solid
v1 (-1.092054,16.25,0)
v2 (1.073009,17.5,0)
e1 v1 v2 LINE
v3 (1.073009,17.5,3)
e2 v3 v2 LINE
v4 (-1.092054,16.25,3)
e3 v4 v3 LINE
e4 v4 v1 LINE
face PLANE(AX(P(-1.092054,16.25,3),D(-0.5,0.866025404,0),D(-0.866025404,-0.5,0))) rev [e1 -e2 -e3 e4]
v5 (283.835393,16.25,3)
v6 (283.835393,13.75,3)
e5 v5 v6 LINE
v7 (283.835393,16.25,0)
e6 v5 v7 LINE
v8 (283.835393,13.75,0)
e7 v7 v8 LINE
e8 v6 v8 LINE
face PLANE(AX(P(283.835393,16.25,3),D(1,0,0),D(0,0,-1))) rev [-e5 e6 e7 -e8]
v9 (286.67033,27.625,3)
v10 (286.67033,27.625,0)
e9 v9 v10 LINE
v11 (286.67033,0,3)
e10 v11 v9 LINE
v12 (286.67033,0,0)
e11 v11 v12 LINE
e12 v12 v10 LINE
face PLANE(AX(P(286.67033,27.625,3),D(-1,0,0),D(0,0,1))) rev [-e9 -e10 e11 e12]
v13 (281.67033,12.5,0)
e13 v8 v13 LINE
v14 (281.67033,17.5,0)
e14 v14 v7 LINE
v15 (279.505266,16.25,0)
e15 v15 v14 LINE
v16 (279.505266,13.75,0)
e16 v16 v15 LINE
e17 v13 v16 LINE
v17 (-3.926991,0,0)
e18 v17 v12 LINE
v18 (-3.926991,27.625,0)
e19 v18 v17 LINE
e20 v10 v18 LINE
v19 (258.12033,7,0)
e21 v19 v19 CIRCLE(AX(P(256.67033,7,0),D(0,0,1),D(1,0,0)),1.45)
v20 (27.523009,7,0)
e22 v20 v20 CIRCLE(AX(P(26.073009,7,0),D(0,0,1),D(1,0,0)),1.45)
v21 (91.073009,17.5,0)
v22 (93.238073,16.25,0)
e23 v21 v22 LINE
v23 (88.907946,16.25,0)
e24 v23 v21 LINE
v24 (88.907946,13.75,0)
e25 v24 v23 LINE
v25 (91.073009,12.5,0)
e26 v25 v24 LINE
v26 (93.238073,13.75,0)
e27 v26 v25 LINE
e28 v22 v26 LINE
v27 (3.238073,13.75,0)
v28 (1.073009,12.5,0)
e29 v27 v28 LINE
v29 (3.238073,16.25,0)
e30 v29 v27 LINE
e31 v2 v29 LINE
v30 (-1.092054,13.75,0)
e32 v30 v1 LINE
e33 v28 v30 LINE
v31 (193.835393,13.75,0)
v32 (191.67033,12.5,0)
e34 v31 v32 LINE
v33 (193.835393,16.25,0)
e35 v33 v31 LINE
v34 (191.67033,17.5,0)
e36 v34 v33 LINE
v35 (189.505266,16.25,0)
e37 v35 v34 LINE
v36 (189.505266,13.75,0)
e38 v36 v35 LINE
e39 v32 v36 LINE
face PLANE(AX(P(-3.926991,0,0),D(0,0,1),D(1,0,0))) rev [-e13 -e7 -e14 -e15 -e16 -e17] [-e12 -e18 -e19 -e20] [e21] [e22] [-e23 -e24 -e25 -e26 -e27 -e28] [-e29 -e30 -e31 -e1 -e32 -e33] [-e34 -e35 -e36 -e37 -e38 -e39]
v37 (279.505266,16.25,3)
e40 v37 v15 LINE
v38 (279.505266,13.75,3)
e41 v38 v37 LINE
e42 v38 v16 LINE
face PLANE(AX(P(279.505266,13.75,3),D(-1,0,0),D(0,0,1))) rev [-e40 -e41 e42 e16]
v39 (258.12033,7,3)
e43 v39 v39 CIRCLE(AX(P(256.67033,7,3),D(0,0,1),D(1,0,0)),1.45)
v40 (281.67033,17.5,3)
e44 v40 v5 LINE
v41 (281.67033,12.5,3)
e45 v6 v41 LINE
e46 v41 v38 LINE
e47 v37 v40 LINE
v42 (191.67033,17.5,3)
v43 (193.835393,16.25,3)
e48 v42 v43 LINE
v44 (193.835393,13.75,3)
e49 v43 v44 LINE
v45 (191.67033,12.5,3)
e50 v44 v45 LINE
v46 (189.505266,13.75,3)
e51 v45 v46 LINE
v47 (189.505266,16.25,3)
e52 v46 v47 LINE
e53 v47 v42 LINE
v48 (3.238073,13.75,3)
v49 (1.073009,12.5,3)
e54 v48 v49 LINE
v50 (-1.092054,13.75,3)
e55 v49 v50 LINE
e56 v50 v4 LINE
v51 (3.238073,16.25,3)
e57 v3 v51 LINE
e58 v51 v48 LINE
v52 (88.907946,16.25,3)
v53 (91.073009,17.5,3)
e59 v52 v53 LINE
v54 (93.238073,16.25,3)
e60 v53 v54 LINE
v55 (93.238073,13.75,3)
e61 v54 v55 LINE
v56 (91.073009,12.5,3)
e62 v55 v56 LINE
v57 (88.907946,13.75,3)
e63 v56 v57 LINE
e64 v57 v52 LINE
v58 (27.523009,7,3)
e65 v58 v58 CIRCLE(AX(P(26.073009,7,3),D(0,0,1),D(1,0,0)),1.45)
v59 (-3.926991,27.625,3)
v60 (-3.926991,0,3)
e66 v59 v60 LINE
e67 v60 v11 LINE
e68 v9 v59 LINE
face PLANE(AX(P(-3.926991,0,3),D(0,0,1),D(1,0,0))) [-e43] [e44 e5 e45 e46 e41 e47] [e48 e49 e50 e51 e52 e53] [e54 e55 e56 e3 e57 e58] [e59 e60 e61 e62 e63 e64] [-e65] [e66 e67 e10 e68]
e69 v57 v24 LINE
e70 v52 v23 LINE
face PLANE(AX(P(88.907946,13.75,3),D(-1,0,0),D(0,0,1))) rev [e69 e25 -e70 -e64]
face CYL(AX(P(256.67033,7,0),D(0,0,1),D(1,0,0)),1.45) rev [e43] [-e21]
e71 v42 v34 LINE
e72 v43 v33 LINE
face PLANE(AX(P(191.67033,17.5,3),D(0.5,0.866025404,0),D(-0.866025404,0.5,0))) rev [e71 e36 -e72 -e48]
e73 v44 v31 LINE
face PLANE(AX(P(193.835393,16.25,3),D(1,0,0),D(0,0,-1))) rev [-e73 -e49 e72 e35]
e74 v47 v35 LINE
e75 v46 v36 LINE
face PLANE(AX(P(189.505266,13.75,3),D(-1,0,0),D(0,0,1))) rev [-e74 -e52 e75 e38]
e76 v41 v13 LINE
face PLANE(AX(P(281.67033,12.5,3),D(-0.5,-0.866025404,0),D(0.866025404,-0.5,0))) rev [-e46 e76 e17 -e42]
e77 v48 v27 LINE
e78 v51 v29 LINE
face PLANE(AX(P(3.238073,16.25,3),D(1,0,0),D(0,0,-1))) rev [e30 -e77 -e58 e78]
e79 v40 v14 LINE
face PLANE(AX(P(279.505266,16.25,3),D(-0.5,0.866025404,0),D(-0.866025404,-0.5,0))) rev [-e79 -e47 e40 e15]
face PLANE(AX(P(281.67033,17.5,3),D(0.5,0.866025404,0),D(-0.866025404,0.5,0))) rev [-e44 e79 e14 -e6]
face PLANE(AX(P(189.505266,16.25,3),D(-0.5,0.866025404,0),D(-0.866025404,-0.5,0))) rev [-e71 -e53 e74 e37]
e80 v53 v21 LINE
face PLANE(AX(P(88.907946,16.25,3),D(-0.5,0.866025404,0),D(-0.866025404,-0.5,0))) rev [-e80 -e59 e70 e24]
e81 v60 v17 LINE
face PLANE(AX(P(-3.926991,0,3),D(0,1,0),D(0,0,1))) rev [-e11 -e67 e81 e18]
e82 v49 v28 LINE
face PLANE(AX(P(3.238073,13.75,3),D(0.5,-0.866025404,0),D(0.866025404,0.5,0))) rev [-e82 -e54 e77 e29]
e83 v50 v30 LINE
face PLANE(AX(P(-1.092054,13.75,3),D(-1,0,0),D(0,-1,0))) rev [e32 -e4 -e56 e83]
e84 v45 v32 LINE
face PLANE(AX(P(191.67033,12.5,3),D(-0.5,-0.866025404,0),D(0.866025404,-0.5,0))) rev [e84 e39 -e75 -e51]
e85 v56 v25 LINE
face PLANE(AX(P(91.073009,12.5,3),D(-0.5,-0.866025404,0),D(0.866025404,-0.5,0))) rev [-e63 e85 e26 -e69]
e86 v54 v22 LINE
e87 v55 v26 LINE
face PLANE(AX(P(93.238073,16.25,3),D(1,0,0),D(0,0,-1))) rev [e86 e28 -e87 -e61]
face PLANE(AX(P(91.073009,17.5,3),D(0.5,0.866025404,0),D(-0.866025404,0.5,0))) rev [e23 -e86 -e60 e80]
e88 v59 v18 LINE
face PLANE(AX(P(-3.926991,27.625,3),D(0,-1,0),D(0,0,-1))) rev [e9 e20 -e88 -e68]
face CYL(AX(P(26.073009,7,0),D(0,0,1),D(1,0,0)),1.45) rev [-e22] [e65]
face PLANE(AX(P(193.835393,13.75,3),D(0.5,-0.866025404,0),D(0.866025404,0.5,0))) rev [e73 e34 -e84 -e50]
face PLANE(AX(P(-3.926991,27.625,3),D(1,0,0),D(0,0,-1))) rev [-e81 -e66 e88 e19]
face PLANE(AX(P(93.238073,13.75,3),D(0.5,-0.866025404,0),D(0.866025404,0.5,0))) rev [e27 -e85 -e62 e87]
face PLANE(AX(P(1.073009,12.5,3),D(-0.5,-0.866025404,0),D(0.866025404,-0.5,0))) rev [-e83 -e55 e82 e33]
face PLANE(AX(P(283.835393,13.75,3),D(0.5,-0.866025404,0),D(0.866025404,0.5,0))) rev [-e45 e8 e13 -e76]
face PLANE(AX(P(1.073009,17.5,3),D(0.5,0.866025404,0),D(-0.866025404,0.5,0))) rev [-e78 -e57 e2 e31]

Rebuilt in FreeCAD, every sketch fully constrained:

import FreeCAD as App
import Part
import Sketcher

V = App.Vector
Q = App.Units.Quantity


def add_polygon(sketch, points):
    """Adds a closed chain of lines whose ends are joined by coincident constraints."""
    first, n = sketch.GeometryCount, len(points)
    for a, b in zip(points, points[1:] + points[:1]):
        sketch.addGeometry(Part.LineSegment(App.Vector(*a, 0), App.Vector(*b, 0)), False)
    for i in range(n):
        sketch.addConstraint(Sketcher.Constraint("Coincident", first + i, 2, first + (i + 1) % n, 1))

doc = App.newDocument("Part")
body = doc.addObject("PartDesign::Body", "Body")

# Sketch on XY plane
sketch1 = body.newObject("Sketcher::SketchObject", "Sketch")
sketch1.AttachmentSupport = (doc.getObject("XY_Plane"), [""])
sketch1.MapMode = "FlatFace"
add_polygon(sketch1, [(-3.9, 27.6), (-3.9, 0), (286.7, 0), (286.7, 27.6)])  # lines 0-3
sketch1.addGeometry(Part.Circle(V(1.1, 15, 0), V(0, 0, 1), 1.1), False)  # 4
sketch1.addGeometry(Part.Circle(V(91.1, 15, 0), V(0, 0, 1), 1.1), False)  # 5
sketch1.addGeometry(Part.Circle(V(191.7, 15, 0), V(0, 0, 1), 1.1), False)  # 6
sketch1.addGeometry(Part.Circle(V(281.7, 15, 0), V(0, 0, 1), 1.1), False)  # 7
sketch1.addConstraint([
    Sketcher.Constraint("Vertical", 0),
    Sketcher.Constraint("Horizontal", 1),
    Sketcher.Constraint("Vertical", 2),
    Sketcher.Constraint("Horizontal", 3),
    Sketcher.Constraint("Equal", 4, 5),
    Sketcher.Constraint("Equal", 5, 6),
    Sketcher.Constraint("Equal", 6, 7),
    Sketcher.Constraint("PointOnObject", 0, 2, -1),
    Sketcher.Constraint("Horizontal", 4, 3, 5, 3),
    Sketcher.Constraint("Horizontal", 5, 3, 6, 3),
    Sketcher.Constraint("Horizontal", 6, 3, 7, 3),
    Sketcher.Constraint("Diameter", 4, Q("2.2 mm")),
    Sketcher.Constraint("DistanceY", -1, 1, 4, 3, Q("15 mm")),
    Sketcher.Constraint("DistanceX", 4, 3, 5, 3, Q("90 mm")),
    Sketcher.Constraint("DistanceX", 6, 3, 7, 3, Q("90 mm")),
    Sketcher.Constraint("DistanceX", 0, 2, 4, 3, Q("5 mm")),
    Sketcher.Constraint("DistanceX", 7, 3, 1, 2, Q("5 mm")),
    Sketcher.Constraint("DistanceY", 0, 2, 0, 1, Q("27.625 mm")),
    Sketcher.Constraint("DistanceX", 1, 1, 1, 2, Q("290.59732 mm")),
    Sketcher.Constraint("DistanceX", -1, 1, 4, 3, Q("1.073009 mm")),
])
pad1 = body.newObject("PartDesign::Pad", "Pad")
pad1.Profile = sketch1
pad1.Length = 3

# Sketch on XY plane
sketch2 = body.newObject("Sketcher::SketchObject", "Sketch001")
sketch2.AttachmentSupport = (doc.getObject("XY_Plane"), [""])
sketch2.MapMode = "FlatFace"
sketch2.AttachmentOffset = App.Placement(V(0, 0, 3), App.Rotation())
sketch2.addGeometry([
    Part.Circle(V(26.1, 7, 0), V(0, 0, 1), 1.4),
    Part.Circle(V(256.7, 7, 0), V(0, 0, 1), 1.4),
], False)
sketch2.addConstraint([
    Sketcher.Constraint("Equal", 0, 1),
    Sketcher.Constraint("Horizontal", 0, 3, 1, 3),
    Sketcher.Constraint("Diameter", 0, Q("2.9 mm")),
    Sketcher.Constraint("DistanceY", -1, 1, 0, 3, Q("7 mm")),
    Sketcher.Constraint("DistanceX", -1, 1, 0, 3, Q("26.073009 mm")),
    Sketcher.Constraint("DistanceX", -1, 1, 1, 3, Q("256.67033 mm")),
])
pocket1 = body.newObject("PartDesign::Pocket", "Pocket")
pocket1.Profile = sketch2
pocket1.Type = "ThroughAll"

# Sketch on XY plane
sketch3 = body.newObject("Sketcher::SketchObject", "Sketch002")
sketch3.AttachmentSupport = (doc.getObject("XY_Plane"), [""])
sketch3.MapMode = "FlatFace"
add_polygon(sketch3, [(1.1, 12.5), (-1.1, 13.8), (-1.1, 16.2), (1.1, 17.5), (3.2, 16.2), (3.2, 13.8)])  # lines 0-5
add_polygon(sketch3, [(88.9, 13.8), (88.9, 16.2), (91.1, 17.5), (93.2, 16.2), (93.2, 13.8), (91.1, 12.5)])  # lines 6-11
add_polygon(sketch3, [(189.5, 13.8), (189.5, 16.2), (191.7, 17.5), (193.8, 16.2), (193.8, 13.8), (191.7, 12.5)])  # lines 12-17
add_polygon(sketch3, [(279.5, 13.8), (279.5, 16.2), (281.7, 17.5), (283.8, 16.2), (283.8, 13.8), (281.7, 12.5)])  # lines 18-23
sketch3.addConstraint([
    Sketcher.Constraint("Vertical", 1),
    Sketcher.Constraint("Vertical", 4),
    Sketcher.Constraint("Vertical", 6),
    Sketcher.Constraint("Vertical", 9),
    Sketcher.Constraint("Vertical", 12),
    Sketcher.Constraint("Vertical", 15),
    Sketcher.Constraint("Vertical", 18),
    Sketcher.Constraint("Vertical", 21),
    Sketcher.Constraint("Parallel", 0, 3),
    Sketcher.Constraint("Parallel", 2, 5),
    Sketcher.Constraint("Parallel", 5, 7),
    Sketcher.Constraint("Parallel", 3, 8),
    Sketcher.Constraint("Parallel", 7, 10),
    Sketcher.Constraint("Parallel", 8, 11),
    Sketcher.Constraint("Parallel", 10, 13),
    Sketcher.Constraint("Parallel", 11, 14),
    Sketcher.Constraint("Parallel", 13, 16),
    Sketcher.Constraint("Parallel", 14, 17),
    Sketcher.Constraint("Parallel", 16, 19),
    Sketcher.Constraint("Parallel", 17, 20),
    Sketcher.Constraint("Parallel", 19, 22),
    Sketcher.Constraint("Parallel", 20, 23),
    Sketcher.Constraint("Horizontal", 1, 2, 3, 2),
    Sketcher.Constraint("Horizontal", 0, 2, 4, 2),
    Sketcher.Constraint("Horizontal", 3, 2, 6, 2),
    Sketcher.Constraint("Horizontal", 2, 2, 7, 2),
    Sketcher.Constraint("Horizontal", 6, 2, 8, 2),
    Sketcher.Constraint("Horizontal", 4, 2, 9, 2),
    Sketcher.Constraint("Horizontal", 5, 2, 10, 2),
    Sketcher.Constraint("Horizontal", 8, 2, 12, 2),
    Sketcher.Constraint("Horizontal", 7, 2, 13, 2),
    Sketcher.Constraint("Horizontal", 12, 2, 14, 2),
    Sketcher.Constraint("Horizontal", 11, 2, 15, 2),
    Sketcher.Constraint("Horizontal", 10, 2, 16, 2),
    Sketcher.Constraint("Horizontal", 14, 2, 18, 2),
    Sketcher.Constraint("Horizontal", 13, 2, 19, 2),
    Sketcher.Constraint("Horizontal", 18, 2, 20, 2),
    Sketcher.Constraint("Horizontal", 17, 2, 21, 2),
    Sketcher.Constraint("Horizontal", 16, 2, 22, 2),
    Sketcher.Constraint("Vertical", 2, 2, 5, 2),
    Sketcher.Constraint("Angle", 0, Q("150 deg")),
    Sketcher.Constraint("DistanceY", 1, 1, 1, 2, Q("2.5 mm")),
    Sketcher.Constraint("DistanceY", 5, 2, 2, 2, Q("5 mm")),
    Sketcher.Constraint("DistanceX", 1, 2, 6, 2, Q("90 mm")),
    Sketcher.Constraint("DistanceX", 12, 2, 18, 2, Q("90 mm")),
    Sketcher.Constraint("DistanceY", -1, 1, 2, 2, Q("17.5 mm")),
    Sketcher.Constraint("DistanceX", -1, 1, 2, 2, Q("1.073009 mm")),
    Sketcher.Constraint("DistanceX", -1, 1, 13, 2, Q("191.67033 mm")),
])
pocket2 = body.newObject("PartDesign::Pocket", "Pocket001")
pocket2.Profile = sketch3
pocket2.Type = "ThroughAll"
pocket2.Reversed = True

doc.recompute()
